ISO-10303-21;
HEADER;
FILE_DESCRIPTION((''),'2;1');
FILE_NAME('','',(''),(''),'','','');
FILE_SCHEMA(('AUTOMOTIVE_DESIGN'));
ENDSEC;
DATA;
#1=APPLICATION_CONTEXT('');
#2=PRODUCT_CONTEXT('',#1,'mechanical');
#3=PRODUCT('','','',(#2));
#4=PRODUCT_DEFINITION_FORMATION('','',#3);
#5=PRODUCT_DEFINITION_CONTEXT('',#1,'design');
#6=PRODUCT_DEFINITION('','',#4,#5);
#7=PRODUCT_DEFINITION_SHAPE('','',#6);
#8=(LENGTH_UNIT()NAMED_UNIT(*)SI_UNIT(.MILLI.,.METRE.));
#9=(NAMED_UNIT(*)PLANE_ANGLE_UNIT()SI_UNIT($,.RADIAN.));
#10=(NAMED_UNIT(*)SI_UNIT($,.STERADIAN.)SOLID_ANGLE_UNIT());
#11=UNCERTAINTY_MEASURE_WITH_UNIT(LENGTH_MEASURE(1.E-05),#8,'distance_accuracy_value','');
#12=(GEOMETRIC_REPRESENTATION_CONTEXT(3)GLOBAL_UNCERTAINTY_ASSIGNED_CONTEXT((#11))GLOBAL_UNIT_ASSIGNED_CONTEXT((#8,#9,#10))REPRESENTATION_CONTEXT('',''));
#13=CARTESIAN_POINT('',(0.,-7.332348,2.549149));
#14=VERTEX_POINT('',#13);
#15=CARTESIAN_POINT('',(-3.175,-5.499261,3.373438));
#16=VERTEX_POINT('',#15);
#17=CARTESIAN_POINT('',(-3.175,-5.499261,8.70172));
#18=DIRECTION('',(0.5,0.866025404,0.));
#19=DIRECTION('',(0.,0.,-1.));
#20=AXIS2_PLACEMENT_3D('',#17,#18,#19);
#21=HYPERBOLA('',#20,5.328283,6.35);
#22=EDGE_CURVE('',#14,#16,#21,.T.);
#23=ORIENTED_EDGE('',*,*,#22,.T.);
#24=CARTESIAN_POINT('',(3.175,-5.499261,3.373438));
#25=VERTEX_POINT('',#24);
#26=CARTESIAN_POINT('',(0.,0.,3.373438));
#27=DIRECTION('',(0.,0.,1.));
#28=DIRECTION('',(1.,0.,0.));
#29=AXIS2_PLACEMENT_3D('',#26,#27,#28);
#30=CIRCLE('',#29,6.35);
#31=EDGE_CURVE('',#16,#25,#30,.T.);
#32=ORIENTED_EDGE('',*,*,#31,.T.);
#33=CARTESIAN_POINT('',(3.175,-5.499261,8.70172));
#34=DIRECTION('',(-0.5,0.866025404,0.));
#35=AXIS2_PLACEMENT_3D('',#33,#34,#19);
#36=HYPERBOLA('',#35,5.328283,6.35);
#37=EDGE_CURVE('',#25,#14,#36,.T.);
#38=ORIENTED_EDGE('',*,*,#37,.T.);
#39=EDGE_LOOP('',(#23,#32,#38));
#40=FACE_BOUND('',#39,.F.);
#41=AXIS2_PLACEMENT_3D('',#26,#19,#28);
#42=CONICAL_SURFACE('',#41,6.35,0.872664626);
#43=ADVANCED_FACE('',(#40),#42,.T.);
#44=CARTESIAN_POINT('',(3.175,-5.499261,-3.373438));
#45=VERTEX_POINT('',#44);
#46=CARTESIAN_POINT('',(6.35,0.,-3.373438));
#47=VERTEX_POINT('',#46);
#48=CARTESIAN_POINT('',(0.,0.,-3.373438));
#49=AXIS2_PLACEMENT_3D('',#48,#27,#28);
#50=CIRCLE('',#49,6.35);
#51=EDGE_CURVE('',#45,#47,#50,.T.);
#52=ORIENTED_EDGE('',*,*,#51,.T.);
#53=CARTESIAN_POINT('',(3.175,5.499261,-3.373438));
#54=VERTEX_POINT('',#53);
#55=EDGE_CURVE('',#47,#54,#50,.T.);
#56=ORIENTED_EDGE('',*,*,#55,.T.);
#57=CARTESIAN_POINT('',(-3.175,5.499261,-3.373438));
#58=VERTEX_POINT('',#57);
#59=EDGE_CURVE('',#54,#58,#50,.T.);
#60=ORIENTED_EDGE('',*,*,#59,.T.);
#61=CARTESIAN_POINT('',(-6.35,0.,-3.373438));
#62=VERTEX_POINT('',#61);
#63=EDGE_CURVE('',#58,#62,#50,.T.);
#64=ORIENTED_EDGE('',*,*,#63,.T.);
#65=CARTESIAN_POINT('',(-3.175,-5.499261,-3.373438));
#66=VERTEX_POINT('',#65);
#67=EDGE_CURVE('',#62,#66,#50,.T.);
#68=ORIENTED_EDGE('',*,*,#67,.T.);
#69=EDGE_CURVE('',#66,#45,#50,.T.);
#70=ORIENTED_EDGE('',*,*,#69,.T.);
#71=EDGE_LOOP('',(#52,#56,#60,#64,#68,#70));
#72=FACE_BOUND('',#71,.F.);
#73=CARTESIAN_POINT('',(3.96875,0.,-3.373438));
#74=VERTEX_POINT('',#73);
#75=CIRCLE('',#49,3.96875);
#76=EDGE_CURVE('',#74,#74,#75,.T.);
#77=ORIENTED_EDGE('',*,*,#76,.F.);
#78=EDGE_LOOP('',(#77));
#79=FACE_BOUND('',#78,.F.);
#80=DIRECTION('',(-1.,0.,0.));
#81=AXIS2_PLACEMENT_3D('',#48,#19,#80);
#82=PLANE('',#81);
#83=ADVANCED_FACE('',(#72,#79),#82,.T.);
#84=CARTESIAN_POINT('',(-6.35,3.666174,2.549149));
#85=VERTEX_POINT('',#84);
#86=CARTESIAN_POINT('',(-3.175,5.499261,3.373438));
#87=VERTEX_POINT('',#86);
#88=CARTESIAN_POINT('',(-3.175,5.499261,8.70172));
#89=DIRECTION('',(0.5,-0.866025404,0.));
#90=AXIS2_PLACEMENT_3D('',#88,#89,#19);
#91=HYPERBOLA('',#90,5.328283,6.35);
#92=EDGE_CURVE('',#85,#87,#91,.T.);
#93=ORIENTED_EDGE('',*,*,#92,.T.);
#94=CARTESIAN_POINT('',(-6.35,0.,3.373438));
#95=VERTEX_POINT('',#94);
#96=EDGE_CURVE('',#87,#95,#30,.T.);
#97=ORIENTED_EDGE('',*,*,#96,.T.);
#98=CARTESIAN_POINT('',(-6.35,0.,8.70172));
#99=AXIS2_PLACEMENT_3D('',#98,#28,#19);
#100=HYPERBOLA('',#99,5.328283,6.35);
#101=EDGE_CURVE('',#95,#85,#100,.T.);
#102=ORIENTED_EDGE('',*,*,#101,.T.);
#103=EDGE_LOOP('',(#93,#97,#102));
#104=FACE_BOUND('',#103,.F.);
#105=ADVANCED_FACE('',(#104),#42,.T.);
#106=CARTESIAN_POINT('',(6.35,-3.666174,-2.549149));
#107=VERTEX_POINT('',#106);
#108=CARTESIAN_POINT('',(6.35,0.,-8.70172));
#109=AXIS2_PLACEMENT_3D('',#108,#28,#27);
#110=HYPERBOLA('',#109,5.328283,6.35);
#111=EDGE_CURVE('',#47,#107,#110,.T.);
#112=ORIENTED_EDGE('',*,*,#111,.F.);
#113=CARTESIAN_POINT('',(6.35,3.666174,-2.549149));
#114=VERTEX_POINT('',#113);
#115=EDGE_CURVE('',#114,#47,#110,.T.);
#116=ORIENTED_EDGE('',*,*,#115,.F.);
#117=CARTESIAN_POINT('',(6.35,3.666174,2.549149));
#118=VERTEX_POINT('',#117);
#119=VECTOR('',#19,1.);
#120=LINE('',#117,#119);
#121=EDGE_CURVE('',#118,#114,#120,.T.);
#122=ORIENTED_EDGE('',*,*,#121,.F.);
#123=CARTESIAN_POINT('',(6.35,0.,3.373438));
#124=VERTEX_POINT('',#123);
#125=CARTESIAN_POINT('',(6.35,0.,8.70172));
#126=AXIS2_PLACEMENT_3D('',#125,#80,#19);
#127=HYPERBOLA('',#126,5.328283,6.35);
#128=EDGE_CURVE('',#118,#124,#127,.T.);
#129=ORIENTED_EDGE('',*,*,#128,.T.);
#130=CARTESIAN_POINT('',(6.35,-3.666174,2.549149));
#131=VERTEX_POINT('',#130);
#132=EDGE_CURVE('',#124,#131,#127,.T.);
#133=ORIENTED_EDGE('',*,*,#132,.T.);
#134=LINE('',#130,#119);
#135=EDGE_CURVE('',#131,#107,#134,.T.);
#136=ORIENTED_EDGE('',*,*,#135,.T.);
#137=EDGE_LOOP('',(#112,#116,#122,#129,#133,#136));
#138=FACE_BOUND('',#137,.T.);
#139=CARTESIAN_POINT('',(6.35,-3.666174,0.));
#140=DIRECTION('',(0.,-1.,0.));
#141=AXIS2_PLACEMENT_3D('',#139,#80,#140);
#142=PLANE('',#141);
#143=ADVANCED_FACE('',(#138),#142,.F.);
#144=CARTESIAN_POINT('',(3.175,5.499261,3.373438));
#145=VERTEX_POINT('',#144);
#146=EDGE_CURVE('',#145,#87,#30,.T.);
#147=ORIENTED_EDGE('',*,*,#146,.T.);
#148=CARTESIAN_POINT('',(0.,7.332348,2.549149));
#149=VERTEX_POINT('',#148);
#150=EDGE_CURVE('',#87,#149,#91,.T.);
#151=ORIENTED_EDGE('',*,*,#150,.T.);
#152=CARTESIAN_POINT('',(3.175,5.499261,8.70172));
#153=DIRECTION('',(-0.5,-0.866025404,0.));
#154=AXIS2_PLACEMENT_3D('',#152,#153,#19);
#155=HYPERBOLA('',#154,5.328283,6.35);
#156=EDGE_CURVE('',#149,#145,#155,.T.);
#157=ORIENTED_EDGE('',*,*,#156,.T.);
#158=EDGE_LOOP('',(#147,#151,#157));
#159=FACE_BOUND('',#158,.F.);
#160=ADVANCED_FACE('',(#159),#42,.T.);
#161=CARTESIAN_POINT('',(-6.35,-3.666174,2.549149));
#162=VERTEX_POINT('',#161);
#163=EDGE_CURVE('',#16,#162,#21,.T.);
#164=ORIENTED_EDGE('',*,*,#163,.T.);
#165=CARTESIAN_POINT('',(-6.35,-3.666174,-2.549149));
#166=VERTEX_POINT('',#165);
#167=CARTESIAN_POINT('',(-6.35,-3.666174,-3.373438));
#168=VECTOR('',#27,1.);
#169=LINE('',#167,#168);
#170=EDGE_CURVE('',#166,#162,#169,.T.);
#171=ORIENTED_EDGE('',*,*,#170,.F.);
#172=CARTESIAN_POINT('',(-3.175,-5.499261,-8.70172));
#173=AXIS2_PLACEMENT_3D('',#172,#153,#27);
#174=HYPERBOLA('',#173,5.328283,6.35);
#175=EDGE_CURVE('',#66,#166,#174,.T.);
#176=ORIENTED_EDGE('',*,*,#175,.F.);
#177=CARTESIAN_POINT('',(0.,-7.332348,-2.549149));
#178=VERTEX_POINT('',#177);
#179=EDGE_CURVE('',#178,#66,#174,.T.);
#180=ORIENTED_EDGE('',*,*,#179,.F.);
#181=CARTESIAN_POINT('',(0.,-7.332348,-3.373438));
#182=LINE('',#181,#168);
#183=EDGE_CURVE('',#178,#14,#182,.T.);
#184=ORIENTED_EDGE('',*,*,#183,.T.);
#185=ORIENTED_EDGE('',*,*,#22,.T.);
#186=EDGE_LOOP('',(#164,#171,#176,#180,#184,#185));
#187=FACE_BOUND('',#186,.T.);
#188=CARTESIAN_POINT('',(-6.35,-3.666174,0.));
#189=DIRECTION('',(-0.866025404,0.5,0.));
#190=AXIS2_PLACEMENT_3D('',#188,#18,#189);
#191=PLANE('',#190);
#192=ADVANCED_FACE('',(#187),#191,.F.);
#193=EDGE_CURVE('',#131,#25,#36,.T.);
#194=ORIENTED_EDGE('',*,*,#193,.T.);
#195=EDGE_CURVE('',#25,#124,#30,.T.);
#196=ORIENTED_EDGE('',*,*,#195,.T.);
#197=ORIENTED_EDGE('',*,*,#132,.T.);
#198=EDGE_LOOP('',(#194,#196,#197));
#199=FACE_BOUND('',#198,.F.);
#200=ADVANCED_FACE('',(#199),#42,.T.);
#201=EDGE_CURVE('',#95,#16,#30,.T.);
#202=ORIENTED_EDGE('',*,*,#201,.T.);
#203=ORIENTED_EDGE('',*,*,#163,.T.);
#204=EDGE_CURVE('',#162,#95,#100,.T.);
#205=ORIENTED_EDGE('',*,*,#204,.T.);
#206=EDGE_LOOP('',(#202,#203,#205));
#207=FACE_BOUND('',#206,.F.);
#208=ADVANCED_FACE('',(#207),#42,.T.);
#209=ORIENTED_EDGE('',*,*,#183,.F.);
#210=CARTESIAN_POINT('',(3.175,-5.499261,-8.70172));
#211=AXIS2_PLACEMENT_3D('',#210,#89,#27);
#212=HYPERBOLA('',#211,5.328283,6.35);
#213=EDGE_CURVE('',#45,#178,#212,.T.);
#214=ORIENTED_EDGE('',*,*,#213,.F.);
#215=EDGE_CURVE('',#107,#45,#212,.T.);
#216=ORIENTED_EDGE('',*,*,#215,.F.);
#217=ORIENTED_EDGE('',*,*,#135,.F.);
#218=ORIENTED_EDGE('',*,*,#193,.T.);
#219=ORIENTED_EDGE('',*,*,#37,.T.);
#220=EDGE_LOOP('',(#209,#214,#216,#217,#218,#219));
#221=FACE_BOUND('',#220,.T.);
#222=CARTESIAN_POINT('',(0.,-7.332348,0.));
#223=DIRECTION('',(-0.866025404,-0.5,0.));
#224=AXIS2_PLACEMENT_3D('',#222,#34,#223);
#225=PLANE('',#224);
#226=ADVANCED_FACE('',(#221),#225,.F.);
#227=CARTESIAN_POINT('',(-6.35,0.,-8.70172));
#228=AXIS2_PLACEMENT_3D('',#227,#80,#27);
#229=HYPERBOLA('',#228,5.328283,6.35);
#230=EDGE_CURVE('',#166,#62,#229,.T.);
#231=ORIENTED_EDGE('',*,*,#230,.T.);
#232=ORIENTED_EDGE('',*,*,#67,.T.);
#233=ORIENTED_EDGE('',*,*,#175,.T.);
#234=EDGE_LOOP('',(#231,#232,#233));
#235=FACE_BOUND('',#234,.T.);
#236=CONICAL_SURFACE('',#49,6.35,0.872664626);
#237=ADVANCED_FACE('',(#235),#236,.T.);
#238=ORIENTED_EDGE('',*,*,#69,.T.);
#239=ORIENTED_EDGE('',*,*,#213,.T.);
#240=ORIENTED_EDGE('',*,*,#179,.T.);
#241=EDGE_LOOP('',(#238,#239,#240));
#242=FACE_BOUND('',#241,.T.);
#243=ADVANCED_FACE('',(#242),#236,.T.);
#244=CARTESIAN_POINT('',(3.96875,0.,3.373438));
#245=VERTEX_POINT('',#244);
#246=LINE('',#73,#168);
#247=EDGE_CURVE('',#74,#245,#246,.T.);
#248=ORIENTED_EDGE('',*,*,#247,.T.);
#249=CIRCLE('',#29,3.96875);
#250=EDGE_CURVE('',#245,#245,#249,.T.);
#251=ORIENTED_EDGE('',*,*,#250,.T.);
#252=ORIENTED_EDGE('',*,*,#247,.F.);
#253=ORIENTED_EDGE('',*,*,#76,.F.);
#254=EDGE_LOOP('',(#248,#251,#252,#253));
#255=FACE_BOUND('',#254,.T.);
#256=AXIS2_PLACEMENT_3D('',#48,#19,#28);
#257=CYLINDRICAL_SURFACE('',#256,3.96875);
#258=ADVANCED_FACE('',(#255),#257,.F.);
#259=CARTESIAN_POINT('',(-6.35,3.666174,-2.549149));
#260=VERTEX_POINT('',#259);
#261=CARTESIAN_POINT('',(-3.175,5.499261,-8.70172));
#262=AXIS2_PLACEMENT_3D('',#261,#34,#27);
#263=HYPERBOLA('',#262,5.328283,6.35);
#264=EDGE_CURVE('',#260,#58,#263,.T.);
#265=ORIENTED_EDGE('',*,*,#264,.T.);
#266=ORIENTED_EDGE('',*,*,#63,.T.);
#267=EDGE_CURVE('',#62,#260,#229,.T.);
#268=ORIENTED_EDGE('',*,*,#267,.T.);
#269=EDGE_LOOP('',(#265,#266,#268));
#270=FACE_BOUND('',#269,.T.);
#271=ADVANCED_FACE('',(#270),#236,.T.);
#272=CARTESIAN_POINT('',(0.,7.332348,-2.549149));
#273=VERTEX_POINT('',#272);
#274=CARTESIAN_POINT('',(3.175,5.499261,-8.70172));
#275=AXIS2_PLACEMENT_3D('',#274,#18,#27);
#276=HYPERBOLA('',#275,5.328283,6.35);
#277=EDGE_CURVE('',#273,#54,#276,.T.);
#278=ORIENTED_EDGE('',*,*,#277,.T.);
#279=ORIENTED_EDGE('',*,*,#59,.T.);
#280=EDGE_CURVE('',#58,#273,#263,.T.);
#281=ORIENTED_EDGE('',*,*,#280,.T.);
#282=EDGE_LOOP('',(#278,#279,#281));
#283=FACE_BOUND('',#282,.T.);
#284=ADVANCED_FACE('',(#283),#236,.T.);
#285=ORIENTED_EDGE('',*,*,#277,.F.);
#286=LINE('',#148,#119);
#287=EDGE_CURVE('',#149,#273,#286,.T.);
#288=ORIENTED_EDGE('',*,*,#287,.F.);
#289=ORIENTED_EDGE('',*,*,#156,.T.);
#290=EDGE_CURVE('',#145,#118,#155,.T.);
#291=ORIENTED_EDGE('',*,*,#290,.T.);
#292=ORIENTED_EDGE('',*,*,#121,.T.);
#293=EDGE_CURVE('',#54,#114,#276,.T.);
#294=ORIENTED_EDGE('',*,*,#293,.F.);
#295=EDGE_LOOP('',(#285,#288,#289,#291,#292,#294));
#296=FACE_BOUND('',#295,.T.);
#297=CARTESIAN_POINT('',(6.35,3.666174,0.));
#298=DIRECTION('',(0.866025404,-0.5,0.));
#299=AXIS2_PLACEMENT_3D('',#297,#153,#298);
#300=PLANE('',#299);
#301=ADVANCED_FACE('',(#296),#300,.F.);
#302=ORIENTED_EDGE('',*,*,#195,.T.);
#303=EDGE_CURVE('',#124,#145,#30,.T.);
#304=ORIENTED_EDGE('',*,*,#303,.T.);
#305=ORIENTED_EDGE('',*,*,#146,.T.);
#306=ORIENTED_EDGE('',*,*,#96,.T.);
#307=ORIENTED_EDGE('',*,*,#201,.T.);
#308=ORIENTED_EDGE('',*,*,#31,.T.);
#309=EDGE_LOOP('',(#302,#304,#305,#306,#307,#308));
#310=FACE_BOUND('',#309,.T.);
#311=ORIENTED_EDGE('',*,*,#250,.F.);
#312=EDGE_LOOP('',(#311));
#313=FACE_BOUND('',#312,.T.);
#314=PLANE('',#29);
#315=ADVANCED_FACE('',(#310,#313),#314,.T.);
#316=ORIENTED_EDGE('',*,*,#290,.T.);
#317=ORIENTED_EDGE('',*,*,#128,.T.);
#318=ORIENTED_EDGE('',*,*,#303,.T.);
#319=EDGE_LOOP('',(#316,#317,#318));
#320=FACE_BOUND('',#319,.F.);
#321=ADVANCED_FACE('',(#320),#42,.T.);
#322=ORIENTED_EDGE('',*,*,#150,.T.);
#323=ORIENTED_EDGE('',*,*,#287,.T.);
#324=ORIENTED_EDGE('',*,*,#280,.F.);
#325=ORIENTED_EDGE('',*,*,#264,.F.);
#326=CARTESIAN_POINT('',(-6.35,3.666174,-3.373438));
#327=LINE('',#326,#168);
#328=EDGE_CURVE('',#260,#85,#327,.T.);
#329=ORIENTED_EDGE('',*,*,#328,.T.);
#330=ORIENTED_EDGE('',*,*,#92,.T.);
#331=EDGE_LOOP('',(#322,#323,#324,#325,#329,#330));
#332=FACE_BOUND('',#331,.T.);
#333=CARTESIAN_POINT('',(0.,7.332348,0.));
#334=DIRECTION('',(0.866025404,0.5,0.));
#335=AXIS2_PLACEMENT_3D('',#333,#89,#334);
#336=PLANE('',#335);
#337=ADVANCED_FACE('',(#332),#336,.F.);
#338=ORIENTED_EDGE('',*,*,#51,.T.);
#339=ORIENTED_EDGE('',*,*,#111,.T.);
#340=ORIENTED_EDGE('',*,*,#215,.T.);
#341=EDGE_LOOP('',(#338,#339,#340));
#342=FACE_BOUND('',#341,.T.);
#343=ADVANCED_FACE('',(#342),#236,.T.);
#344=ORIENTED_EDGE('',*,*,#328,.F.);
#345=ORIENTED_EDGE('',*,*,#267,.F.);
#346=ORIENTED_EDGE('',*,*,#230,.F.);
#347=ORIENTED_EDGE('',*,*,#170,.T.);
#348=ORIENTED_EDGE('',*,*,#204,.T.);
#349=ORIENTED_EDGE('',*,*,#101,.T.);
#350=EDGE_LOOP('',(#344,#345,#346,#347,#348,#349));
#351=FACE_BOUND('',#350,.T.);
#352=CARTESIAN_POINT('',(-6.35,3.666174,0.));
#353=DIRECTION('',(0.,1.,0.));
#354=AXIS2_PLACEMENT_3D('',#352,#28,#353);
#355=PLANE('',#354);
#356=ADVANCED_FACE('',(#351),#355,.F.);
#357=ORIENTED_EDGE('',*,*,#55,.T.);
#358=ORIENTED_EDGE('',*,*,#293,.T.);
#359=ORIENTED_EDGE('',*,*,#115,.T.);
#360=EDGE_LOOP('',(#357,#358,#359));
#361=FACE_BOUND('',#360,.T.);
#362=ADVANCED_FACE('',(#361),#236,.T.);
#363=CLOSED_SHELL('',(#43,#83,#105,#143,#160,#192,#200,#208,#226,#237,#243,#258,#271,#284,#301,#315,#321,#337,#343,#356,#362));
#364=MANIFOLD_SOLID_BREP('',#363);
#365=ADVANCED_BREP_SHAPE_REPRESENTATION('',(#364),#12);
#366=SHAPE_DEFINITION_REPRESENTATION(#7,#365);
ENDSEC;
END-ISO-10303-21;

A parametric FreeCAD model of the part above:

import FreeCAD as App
import Part
import Sketcher

V = App.Vector
Q = App.Units.Quantity


def add_polygon(sketch, points):
    """Adds a closed chain of lines whose ends are joined by coincident constraints."""
    first, n = sketch.GeometryCount, len(points)
    for a, b in zip(points, points[1:] + points[:1]):
        sketch.addGeometry(Part.LineSegment(App.Vector(*a, 0), App.Vector(*b, 0)), False)
    for i in range(n):
        sketch.addConstraint(Sketcher.Constraint("Coincident", first + i, 2, first + (i + 1) % n, 1))

doc = App.newDocument("Part")
body = doc.addObject("PartDesign::Body", "Body")

# Sketch on XY plane
sketch1 = body.newObject("Sketcher::SketchObject", "Sketch")
sketch1.AttachmentSupport = (doc.getObject("XY_Plane"), [""])
sketch1.MapMode = "FlatFace"
add_polygon(sketch1, [(0, 7), (-6, 4), (-6, -4), (0, -7), (6, -4), (6, 4)])  # lines 0-5
sketch1.addConstraint([
    Sketcher.Constraint("Vertical", 1),
    Sketcher.Constraint("Vertical", 4),
    Sketcher.Constraint("Symmetric", 0, 2, 3, 2, -1, 1),
    Sketcher.Constraint("Symmetric", 2, 2, 5, 2, -1, 1),
    Sketcher.Constraint("PointOnObject", 2, 2, -2),
    Sketcher.Constraint("Parallel", 2, 5),
    Sketcher.Constraint("Horizontal", 1, 2, 3, 2),
    Sketcher.Constraint("Angle", 0, Q("-150 deg")),
    Sketcher.Constraint("DistanceX", 1, 2, 3, 2, Q("0.5 in")),
    Sketcher.Constraint("DistanceY", 1, 2, 1, 1, 7.332348),
])
pad1 = body.newObject("PartDesign::Pad", "Pad")
pad1.Profile = sketch1
pad1.Length = 3.373438

# Sketch on XY plane
sketch2 = body.newObject("Sketcher::SketchObject", "Sketch001")
sketch2.AttachmentSupport = (doc.getObject("XY_Plane"), [""])
sketch2.MapMode = "FlatFace"
sketch2.AttachmentOffset = App.Placement(V(0, 0, 3.373438), App.Rotation())
sketch2.addGeometry(Part.Circle(V(0, 0, 0), V(0, 0, 1), 4), False)
sketch2.addConstraint([
    Sketcher.Constraint("Coincident", 0, 3, -1, 1),
    Sketcher.Constraint("Diameter", 0, Q("0.3125 in")),
])
pocket1 = body.newObject("PartDesign::Pocket", "Pocket")
pocket1.Profile = sketch2
pocket1.Type = "ThroughAll"

# Sketch on XZ plane
sketch3 = body.newObject("Sketcher::SketchObject", "Sketch002")
sketch3.AttachmentSupport = (doc.getObject("XZ_Plane"), [""])
sketch3.MapMode = "FlatFace"
add_polygon(sketch3, [(9.5, 0.7), (6.3, 3.4), (9.5, 3.4)])  # lines 0-2
sketch3.addConstraint([
    Sketcher.Constraint("Horizontal", 1),
    Sketcher.Constraint("Vertical", 2),
    Sketcher.Constraint("Angle", 0, Q("140 deg")),
    Sketcher.Constraint("DistanceX", 1, 1, 1, 2, Q("0.125 in")),
    Sketcher.Constraint("DistanceX", -1, 1, 0, 2, Q("0.25 in")),
    Sketcher.Constraint("DistanceY", -1, 1, 0, 2, 3.373438),
])
groove = body.newObject("PartDesign::Groove", "Groove")
groove.Profile = sketch3
groove.ReferenceAxis = (sketch3, ["V_Axis"])
groove.Angle = 360
doc.recompute()

mirrored = body.newObject("PartDesign::Mirrored", "Mirrored")
mirrored.Originals = [pad1, pocket1, groove]
mirrored.MirrorPlane = (doc.getObject("XY_Plane"), [""])
body.Tip = mirrored

doc.recompute()
